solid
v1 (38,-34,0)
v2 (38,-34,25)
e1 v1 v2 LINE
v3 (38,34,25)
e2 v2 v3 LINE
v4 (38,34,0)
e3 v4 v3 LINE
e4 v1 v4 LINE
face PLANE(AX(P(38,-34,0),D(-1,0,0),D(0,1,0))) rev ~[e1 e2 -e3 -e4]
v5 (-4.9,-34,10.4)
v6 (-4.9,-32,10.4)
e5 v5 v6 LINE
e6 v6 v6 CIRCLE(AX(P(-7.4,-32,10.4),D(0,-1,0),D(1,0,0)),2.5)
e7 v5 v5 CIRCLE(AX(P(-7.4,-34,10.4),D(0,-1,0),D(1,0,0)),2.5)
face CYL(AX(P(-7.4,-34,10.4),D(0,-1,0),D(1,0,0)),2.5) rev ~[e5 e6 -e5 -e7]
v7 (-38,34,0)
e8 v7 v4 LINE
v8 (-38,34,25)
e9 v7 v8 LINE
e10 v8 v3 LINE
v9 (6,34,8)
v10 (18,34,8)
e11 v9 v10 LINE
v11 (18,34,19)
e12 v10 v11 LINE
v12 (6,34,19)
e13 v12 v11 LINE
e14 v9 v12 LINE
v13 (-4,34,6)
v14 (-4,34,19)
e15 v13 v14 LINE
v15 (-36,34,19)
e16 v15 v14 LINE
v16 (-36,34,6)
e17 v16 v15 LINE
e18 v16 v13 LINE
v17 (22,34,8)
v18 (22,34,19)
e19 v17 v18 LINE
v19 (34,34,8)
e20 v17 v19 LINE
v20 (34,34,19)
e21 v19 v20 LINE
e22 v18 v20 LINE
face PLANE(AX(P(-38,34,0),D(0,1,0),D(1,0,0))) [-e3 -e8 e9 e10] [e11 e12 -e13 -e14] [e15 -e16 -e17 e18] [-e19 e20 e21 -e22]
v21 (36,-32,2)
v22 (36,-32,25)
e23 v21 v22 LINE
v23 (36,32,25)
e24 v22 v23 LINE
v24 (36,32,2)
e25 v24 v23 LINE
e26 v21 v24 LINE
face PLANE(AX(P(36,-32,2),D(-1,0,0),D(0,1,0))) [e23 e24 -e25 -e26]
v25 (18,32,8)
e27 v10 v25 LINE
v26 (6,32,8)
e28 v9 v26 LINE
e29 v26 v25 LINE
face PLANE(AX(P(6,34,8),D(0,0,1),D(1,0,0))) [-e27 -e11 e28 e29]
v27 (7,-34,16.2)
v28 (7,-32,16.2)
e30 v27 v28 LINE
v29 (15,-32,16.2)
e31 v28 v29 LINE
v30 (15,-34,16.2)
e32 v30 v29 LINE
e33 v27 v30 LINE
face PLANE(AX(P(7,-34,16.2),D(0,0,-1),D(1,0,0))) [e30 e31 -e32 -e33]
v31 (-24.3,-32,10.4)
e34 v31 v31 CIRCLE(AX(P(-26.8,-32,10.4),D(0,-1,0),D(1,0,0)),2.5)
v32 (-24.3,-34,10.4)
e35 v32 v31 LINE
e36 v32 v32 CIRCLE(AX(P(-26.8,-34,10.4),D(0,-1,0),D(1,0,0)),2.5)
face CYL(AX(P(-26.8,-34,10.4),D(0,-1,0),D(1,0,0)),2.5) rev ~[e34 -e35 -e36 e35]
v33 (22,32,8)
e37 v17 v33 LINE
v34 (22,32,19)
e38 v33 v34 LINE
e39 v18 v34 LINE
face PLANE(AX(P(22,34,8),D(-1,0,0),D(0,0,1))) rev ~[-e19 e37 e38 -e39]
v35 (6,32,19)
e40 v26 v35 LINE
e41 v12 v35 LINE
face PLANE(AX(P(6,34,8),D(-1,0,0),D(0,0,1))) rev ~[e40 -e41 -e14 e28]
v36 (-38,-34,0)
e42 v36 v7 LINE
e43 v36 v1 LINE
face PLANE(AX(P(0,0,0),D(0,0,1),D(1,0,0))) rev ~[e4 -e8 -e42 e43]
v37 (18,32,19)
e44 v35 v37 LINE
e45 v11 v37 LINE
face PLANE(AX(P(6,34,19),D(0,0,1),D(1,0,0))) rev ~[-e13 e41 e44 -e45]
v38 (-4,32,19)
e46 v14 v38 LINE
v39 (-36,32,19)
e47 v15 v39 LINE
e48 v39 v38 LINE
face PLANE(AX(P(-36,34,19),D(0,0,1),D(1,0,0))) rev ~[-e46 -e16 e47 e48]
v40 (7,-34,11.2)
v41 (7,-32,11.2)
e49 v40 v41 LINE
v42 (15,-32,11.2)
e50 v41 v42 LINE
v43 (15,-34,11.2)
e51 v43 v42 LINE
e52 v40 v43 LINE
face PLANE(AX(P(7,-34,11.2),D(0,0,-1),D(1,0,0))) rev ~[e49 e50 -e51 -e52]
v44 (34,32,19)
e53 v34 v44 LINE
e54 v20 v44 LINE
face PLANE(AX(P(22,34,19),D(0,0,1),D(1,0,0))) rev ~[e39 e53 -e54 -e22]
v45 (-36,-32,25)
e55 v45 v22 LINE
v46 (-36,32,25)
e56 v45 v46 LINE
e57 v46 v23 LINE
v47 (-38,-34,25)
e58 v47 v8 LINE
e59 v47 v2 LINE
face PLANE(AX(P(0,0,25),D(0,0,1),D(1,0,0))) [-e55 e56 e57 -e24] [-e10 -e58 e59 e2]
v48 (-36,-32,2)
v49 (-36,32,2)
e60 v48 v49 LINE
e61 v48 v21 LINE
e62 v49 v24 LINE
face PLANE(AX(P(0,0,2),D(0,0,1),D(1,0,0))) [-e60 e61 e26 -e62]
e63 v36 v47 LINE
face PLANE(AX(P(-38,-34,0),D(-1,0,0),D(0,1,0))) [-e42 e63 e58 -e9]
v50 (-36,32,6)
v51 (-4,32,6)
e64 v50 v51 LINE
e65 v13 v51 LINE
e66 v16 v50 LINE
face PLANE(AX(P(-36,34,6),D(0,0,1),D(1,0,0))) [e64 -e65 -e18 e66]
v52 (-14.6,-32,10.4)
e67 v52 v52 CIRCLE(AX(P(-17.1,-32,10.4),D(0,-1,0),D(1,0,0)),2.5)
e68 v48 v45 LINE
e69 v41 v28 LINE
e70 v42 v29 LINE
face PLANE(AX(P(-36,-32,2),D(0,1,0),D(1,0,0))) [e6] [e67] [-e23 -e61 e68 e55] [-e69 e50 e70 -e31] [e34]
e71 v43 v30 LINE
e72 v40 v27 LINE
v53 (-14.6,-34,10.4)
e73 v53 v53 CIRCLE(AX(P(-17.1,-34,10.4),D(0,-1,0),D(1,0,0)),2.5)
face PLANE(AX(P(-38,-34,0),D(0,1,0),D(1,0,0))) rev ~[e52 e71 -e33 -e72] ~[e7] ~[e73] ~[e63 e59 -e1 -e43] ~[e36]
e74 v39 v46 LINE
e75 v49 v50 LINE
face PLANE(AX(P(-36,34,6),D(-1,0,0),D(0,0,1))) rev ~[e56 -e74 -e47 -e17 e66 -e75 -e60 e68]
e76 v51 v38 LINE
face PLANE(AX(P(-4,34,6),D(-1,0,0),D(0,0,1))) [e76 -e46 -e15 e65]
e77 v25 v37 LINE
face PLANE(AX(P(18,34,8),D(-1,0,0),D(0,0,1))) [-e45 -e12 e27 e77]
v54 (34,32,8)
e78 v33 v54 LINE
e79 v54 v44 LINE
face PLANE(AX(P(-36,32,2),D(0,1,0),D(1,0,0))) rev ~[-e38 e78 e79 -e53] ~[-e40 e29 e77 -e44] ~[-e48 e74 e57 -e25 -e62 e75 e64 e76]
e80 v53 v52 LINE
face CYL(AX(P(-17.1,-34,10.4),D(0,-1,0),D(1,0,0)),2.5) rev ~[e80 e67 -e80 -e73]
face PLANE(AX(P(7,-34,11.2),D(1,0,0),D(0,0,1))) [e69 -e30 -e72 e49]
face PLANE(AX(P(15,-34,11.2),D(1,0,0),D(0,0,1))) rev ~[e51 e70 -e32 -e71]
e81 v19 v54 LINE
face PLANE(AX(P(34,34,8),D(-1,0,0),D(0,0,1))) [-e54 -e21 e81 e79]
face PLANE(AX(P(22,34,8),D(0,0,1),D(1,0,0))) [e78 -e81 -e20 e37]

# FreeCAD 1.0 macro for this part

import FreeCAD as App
import Part
import Sketcher

V = App.Vector
Q = App.Units.Quantity


def add_polygon(sketch, points):
    """Adds a closed chain of lines whose ends are joined by coincident constraints."""
    first, n = sketch.GeometryCount, len(points)
    for a, b in zip(points, points[1:] + points[:1]):
        sketch.addGeometry(Part.LineSegment(App.Vector(*a, 0), App.Vector(*b, 0)), False)
    for i in range(n):
        sketch.addConstraint(Sketcher.Constraint("Coincident", first + i, 2, first + (i + 1) % n, 1))

doc = App.newDocument("Part")
body = doc.addObject("PartDesign::Body", "Body")

# Sketch on XY plane
sketch1 = body.newObject("Sketcher::SketchObject", "Sketch")
sketch1.AttachmentSupport = (doc.getObject("XY_Plane"), [""])
sketch1.MapMode = "FlatFace"
add_polygon(sketch1, [(-38, 34), (-38, -34), (38, -34), (38, 34)])  # lines 0-3
sketch1.addConstraint([
    Sketcher.Constraint("Vertical", 0),
    Sketcher.Constraint("Horizontal", 1),
    Sketcher.Constraint("Vertical", 2),
    Sketcher.Constraint("Horizontal", 3),
    Sketcher.Constraint("Symmetric", 0, 2, 2, 2, -1, 1),
    Sketcher.Constraint("DistanceX", 1, 1, 1, 2, Q("76 mm")),
    Sketcher.Constraint("DistanceY", 0, 2, 0, 1, Q("68 mm")),
])
pad1 = body.newObject("PartDesign::Pad", "Pad")
pad1.Profile = sketch1
pad1.Length = 25

# Sketch on XY plane
sketch2 = body.newObject("Sketcher::SketchObject", "Sketch001")
sketch2.AttachmentSupport = (doc.getObject("XY_Plane"), [""])
sketch2.MapMode = "FlatFace"
sketch2.AttachmentOffset = App.Placement(V(0, 0, 2), App.Rotation())
add_polygon(sketch2, [(-36, 32), (-36, -32), (36, -32), (36, 32)])  # lines 0-3
sketch2.addConstraint([
    Sketcher.Constraint("Vertical", 0),
    Sketcher.Constraint("Horizontal", 1),
    Sketcher.Constraint("Vertical", 2),
    Sketcher.Constraint("Horizontal", 3),
    Sketcher.Constraint("Symmetric", 0, 2, 2, 2, -1, 1),
    Sketcher.Constraint("DistanceX", 1, 1, 1, 2, Q("72 mm")),
    Sketcher.Constraint("DistanceY", 0, 2, 0, 1, Q("64 mm")),
])
pocket1 = body.newObject("PartDesign::Pocket", "Pocket")
pocket1.Profile = sketch2
pocket1.Length = 23
pocket1.Reversed = True

# Sketch on XZ plane
sketch3 = body.newObject("Sketcher::SketchObject", "Sketch002")
sketch3.AttachmentSupport = (doc.getObject("XZ_Plane"), [""])
sketch3.MapMode = "FlatFace"
sketch3.AttachmentOffset = App.Placement(V(0, 0, 34), App.Rotation())
sketch3.addGeometry(Part.Circle(V(-7.4, 10.4, 0), V(0, 0, 1), 2.5), False)  # 0
sketch3.addGeometry(Part.Circle(V(-17.1, 10.4, 0), V(0, 0, 1), 2.5), False)  # 1
sketch3.addGeometry(Part.Circle(V(-26.8, 10.4, 0), V(0, 0, 1), 2.5), False)  # 2
add_polygon(sketch3, [(7, 16.2), (7, 11.2), (15, 11.2), (15, 16.2)])  # lines 3-6
sketch3.addConstraint([
    Sketcher.Constraint("Vertical", 3),
    Sketcher.Constraint("Horizontal", 4),
    Sketcher.Constraint("Vertical", 5),
    Sketcher.Constraint("Horizontal", 6),
    Sketcher.Constraint("Equal", 0, 1),
    Sketcher.Constraint("Equal", 1, 2),
    Sketcher.Constraint("Horizontal", 0, 3, 1, 3),
    Sketcher.Constraint("Horizontal", 1, 3, 2, 3),
    Sketcher.Constraint("Diameter", 0, Q("5 mm")),
    Sketcher.Constraint("DistanceX", 4, 1, 4, 2, Q("8 mm")),
    Sketcher.Constraint("DistanceY", 3, 2, 3, 1, Q("5 mm")),
    Sketcher.Constraint("DistanceX", -1, 1, 3, 2, Q("7 mm")),
    Sketcher.Constraint("DistanceX", 0, 3, -1, 1, Q("7.4 mm")),
    Sketcher.Constraint("DistanceY", -1, 1, 0, 3, Q("10.4 mm")),
    Sketcher.Constraint("DistanceX", 1, 3, -1, 1, Q("17.1 mm")),
    Sketcher.Constraint("DistanceX", 2, 3, -1, 1, Q("26.8 mm")),
    Sketcher.Constraint("DistanceY", -1, 1, 3, 2, Q("11.2 mm")),
])
pocket2 = body.newObject("PartDesign::Pocket", "Pocket001")
pocket2.Profile = sketch3
pocket2.Length = 2

# Sketch on XZ plane
sketch4 = body.newObject("Sketcher::SketchObject", "Sketch003")
sketch4.AttachmentSupport = (doc.getObject("XZ_Plane"), [""])
sketch4.MapMode = "FlatFace"
sketch4.AttachmentOffset = App.Placement(V(0, 0, -34), App.Rotation())
add_polygon(sketch4, [(-36, 19), (-36, 6), (-4, 6), (-4, 19)])  # lines 0-3
add_polygon(sketch4, [(6, 19), (6, 8), (18, 8), (18, 19)])  # lines 4-7
add_polygon(sketch4, [(22, 19), (22, 8), (34, 8), (34, 19)])  # lines 8-11
sketch4.addConstraint([
    Sketcher.Constraint("Vertical", 0),
    Sketcher.Constraint("Horizontal", 1),
    Sketcher.Constraint("Vertical", 2),
    Sketcher.Constraint("Horizontal", 3),
    Sketcher.Constraint("Vertical", 4),
    Sketcher.Constraint("Horizontal", 5),
    Sketcher.Constraint("Vertical", 6),
    Sketcher.Constraint("Horizontal", 7),
    Sketcher.Constraint("Vertical", 8),
    Sketcher.Constraint("Horizontal", 9),
    Sketcher.Constraint("Vertical", 10),
    Sketcher.Constraint("Horizontal", 11),
    Sketcher.Constraint("Horizontal", 3, 2, 6, 2),
    Sketcher.Constraint("Horizontal", 5, 2, 8, 2),
    Sketcher.Constraint("Horizontal", 7, 2, 10, 2),
    Sketcher.Constraint("Equal", 7, 9),
    Sketcher.Constraint("DistanceX", 1, 1, 1, 2, Q("32 mm")),
    Sketcher.Constraint("DistanceX", 5, 1, 5, 2, Q("12 mm")),
    Sketcher.Constraint("DistanceY", 0, 2, 0, 1, Q("13 mm")),
    Sketcher.Constraint("DistanceY", 4, 2, 4, 1, Q("11 mm")),
    Sketcher.Constraint("DistanceX", 0, 2, -1, 1, Q("36 mm")),
    Sketcher.Constraint("DistanceY", -1, 1, 0, 2, Q("6 mm")),
    Sketcher.Constraint("DistanceX", -1, 1, 4, 2, Q("6 mm")),
    Sketcher.Constraint("DistanceX", -1, 1, 8, 2, Q("22 mm")),
])
pocket3 = body.newObject("PartDesign::Pocket", "Pocket002")
pocket3.Profile = sketch4
pocket3.Length = 2
pocket3.Reversed = True

doc.recompute()
